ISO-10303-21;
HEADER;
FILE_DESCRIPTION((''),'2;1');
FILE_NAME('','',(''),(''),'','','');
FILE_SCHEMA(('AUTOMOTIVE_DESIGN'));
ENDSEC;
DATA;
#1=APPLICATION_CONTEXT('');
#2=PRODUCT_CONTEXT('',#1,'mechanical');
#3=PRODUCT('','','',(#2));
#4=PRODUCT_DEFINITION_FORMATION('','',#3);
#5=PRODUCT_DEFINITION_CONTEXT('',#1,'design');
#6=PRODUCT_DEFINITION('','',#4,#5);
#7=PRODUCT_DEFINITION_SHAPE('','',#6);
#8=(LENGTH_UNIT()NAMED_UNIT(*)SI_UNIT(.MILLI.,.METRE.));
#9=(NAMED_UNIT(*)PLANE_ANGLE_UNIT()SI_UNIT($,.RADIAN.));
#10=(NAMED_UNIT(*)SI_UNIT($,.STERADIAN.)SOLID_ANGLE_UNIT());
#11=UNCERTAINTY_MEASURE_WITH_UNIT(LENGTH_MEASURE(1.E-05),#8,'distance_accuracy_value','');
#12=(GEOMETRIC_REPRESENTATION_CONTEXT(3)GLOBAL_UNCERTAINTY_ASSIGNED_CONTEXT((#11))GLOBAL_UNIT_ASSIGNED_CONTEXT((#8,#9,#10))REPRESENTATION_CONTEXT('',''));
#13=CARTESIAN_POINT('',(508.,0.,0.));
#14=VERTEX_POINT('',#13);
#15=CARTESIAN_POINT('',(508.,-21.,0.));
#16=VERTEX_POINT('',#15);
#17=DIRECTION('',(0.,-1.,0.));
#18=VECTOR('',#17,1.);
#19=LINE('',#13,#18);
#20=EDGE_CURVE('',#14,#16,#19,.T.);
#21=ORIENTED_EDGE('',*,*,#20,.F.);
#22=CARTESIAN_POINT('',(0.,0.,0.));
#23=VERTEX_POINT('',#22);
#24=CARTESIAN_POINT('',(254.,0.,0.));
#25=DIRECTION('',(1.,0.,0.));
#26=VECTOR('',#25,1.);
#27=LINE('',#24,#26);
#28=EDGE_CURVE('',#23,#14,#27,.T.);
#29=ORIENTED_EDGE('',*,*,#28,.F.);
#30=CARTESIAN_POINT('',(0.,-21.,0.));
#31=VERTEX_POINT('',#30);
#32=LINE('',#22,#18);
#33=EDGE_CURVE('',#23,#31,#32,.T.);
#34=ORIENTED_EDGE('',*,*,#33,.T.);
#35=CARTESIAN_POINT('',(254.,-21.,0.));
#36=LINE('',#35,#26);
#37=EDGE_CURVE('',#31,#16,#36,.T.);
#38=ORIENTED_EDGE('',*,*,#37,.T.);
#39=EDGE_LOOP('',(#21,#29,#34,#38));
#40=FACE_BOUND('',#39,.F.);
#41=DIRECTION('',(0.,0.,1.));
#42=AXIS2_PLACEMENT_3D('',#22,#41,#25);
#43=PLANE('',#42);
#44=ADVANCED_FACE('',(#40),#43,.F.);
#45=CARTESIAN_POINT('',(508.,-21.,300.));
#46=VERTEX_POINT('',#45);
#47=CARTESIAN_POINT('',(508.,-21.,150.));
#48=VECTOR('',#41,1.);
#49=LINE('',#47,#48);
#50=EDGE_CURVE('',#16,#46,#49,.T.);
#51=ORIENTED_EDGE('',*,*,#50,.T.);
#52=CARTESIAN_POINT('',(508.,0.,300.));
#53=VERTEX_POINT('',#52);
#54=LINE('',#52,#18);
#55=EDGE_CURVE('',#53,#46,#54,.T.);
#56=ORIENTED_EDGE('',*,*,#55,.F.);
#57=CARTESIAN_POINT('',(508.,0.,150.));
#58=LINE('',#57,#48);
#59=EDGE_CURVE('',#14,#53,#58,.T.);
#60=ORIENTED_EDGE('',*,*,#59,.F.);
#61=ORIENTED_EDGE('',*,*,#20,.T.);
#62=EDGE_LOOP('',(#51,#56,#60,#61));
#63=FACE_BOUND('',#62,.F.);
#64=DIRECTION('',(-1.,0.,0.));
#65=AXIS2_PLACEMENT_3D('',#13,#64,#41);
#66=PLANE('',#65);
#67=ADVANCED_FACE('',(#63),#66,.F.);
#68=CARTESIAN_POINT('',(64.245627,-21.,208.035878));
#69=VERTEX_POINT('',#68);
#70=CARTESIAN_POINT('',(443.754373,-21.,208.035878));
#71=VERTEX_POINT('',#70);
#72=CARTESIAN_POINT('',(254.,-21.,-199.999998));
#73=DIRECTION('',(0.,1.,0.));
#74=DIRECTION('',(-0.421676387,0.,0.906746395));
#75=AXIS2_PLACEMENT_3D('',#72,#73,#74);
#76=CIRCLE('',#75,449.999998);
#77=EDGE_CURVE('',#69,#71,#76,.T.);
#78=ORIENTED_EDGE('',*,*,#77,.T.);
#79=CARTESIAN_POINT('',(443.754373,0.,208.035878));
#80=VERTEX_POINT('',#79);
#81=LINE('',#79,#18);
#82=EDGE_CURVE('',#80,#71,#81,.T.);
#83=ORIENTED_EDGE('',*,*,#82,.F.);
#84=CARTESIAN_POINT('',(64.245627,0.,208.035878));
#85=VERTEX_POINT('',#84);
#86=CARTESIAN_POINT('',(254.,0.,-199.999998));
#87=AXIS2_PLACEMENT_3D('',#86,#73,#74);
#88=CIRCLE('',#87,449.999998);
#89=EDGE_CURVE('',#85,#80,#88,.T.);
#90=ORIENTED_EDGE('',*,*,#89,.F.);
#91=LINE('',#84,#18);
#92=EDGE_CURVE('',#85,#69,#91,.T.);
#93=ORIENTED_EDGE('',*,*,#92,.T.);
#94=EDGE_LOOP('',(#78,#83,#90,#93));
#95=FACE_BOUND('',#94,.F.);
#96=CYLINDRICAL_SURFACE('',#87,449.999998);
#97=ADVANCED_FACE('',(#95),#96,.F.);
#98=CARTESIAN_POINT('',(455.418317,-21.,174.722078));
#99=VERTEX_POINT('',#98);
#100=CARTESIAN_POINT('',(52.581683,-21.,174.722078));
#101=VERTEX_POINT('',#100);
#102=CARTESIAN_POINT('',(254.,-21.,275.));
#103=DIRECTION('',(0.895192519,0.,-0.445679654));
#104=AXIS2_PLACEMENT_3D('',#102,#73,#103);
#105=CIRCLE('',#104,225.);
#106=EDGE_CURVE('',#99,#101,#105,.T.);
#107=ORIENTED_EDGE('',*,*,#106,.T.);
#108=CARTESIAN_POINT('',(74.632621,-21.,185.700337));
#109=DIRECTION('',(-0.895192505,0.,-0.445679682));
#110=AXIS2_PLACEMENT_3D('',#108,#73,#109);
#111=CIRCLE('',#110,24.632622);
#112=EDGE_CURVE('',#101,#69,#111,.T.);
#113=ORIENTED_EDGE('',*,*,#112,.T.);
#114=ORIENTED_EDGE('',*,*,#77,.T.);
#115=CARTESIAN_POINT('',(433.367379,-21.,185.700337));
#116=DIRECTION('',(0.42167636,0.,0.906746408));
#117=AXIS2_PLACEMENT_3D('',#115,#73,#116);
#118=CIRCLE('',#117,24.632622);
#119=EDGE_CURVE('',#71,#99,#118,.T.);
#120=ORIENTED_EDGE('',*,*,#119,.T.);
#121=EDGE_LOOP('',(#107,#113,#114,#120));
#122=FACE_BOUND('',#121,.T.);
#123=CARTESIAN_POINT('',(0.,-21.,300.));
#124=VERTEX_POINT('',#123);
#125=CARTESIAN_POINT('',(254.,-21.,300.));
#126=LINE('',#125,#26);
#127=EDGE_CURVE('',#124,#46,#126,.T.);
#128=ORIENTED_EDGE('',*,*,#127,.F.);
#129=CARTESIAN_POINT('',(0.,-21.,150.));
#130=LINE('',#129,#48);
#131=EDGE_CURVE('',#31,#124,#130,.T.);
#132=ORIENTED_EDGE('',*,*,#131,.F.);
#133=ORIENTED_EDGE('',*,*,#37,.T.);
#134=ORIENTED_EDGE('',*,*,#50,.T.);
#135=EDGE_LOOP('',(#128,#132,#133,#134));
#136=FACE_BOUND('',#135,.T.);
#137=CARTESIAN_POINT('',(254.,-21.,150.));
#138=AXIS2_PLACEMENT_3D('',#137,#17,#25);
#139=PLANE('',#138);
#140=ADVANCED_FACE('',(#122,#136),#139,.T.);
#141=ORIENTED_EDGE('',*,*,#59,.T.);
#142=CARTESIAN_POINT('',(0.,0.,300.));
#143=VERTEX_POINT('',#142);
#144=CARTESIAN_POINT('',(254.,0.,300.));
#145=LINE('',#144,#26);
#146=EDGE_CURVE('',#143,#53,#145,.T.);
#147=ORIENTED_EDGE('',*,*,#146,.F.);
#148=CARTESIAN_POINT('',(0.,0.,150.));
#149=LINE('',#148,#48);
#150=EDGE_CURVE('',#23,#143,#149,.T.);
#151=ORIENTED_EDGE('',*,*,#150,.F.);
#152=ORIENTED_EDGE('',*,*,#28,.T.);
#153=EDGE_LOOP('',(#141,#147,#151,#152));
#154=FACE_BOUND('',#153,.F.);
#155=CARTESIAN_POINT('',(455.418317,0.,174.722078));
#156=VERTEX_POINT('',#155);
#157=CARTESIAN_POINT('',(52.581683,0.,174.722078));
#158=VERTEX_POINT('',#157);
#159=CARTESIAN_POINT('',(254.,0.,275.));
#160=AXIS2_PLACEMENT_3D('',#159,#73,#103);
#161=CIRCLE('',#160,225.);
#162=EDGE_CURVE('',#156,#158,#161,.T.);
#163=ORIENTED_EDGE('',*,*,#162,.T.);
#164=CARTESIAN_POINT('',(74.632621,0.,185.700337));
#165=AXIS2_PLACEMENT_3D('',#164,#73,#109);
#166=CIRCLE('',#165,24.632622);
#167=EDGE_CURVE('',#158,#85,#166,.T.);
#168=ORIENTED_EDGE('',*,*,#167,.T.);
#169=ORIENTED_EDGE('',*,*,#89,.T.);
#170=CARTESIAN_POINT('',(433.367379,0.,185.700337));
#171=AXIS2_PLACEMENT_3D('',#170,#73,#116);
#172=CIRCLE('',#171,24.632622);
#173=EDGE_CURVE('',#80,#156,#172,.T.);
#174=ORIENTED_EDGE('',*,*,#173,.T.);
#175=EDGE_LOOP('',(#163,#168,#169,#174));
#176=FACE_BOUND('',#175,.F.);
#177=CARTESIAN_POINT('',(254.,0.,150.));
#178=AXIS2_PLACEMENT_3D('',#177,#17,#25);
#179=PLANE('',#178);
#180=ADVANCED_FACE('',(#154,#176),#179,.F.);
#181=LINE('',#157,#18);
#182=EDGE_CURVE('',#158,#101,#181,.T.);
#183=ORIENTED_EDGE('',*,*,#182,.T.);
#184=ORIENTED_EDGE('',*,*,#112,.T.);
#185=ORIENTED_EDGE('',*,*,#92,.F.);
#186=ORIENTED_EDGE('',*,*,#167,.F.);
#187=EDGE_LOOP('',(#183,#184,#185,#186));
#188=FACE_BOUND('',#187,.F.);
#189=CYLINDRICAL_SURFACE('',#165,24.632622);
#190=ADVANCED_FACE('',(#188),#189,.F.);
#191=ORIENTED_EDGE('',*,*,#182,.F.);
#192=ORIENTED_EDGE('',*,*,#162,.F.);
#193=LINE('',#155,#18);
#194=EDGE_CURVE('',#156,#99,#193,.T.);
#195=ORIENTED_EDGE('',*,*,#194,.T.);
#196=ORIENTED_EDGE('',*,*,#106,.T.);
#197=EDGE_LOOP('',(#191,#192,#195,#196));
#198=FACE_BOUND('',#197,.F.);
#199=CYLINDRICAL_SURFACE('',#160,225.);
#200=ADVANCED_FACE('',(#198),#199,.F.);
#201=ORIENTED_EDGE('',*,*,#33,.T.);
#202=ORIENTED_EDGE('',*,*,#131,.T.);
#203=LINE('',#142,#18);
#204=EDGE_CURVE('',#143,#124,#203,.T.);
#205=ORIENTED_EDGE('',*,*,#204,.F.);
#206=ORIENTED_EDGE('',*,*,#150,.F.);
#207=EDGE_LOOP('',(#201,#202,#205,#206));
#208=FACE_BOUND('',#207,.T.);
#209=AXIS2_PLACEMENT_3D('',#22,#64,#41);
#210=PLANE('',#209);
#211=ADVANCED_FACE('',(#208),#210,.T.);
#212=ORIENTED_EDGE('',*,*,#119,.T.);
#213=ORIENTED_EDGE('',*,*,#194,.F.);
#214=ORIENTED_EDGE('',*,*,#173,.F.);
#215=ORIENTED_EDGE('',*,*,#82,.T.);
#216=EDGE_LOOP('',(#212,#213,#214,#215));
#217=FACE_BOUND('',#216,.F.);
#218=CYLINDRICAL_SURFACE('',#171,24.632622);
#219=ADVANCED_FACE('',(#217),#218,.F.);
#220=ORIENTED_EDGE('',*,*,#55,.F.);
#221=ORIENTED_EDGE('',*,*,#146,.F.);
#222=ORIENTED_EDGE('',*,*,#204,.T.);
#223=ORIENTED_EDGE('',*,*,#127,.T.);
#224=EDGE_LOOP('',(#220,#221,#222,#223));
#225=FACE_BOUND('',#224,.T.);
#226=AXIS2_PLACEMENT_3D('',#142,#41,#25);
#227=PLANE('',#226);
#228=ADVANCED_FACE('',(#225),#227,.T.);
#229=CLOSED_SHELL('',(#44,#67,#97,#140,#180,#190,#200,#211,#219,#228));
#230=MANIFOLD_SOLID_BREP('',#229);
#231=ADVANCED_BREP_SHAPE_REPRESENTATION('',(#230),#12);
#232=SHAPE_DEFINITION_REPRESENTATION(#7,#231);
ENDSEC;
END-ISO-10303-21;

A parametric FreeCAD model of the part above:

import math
import FreeCAD as App
import Part
import Sketcher

doc = App.newDocument("Part")
body = doc.addObject("PartDesign::Body", "Body")

# Sketch on XZ plane
sketch1 = body.newObject("Sketcher::SketchObject", "Sketch")
sketch1.AttachmentSupport = (doc.getObject("XZ_Plane"), [""])
sketch1.MapMode = "FlatFace"
sketch1.addGeometry([
    Part.LineSegment(App.Vector(0, 300, 0), App.Vector(0, 0, 0)),  # 0
    Part.LineSegment(App.Vector(0, 0, 0), App.Vector(508, 0, 0)),  # 1
    Part.LineSegment(App.Vector(508, 0, 0), App.Vector(508, 300, 0)),  # 2
    Part.LineSegment(App.Vector(508, 300, 0), App.Vector(0, 300, 0)),  # 3
    Part.ArcOfCircle(Part.Circle(App.Vector(74.632621, 185.700337, 0), App.Vector(0, 0, 1), 24.632622), math.radians(114.940468), math.radians(206.466833)),  # 4
    Part.ArcOfCircle(Part.Circle(App.Vector(254, -199.999998, 0), App.Vector(0, 0, 1), 449.999998), math.radians(65.05953), math.radians(114.94047)),  # 5
    Part.ArcOfCircle(Part.Circle(App.Vector(433.367379, 185.700337, 0), App.Vector(0, 0, 1), 24.632622), math.radians(-26.466833), math.radians(65.059532)),  # 6
    Part.ArcOfCircle(Part.Circle(App.Vector(254, 275, 0), App.Vector(0, 0, 1), 225), math.radians(-153.533169), math.radians(-26.466831)),  # 7
], False)
sketch1.addConstraint([
    Sketcher.Constraint("Coincident", 0, 2, 1, 1),
    Sketcher.Constraint("Coincident", 1, 2, 2, 1),
    Sketcher.Constraint("Coincident", 2, 2, 3, 1),
    Sketcher.Constraint("Coincident", 3, 2, 0, 1),
    Sketcher.Constraint("Tangent", 4, 1, 5, 2),
    Sketcher.Constraint("Tangent", 5, 1, 6, 2),
    Sketcher.Constraint("Tangent", 6, 1, 7, 2),
    Sketcher.Constraint("Tangent", 7, 1, 4, 2),
    Sketcher.Constraint("Vertical", 0),
    Sketcher.Constraint("Horizontal", 1),
    Sketcher.Constraint("Vertical", 2),
    Sketcher.Constraint("Horizontal", 3),
    Sketcher.Constraint("Coincident", 0, 2, -1, 1),
    Sketcher.Constraint("Equal", 4, 6),
    Sketcher.Constraint("Horizontal", 4, 3, 6, 3),
    Sketcher.Constraint("Radius", 7, 225.0),
    Sketcher.Constraint("DistanceX", 1, 1, 1, 2, 508.0),
    Sketcher.Constraint("DistanceY", 0, 2, 0, 1, 300.0),
    Sketcher.Constraint("DistanceX", -1, 1, 5, 3, 254.0),
    Sketcher.Constraint("DistanceY", -1, 1, 7, 3, 275.0),
    Sketcher.Constraint("Radius", 4, 24.632622),
    Sketcher.Constraint("Radius", 5, 449.999998),
    Sketcher.Constraint("DistanceX", -1, 1, 4, 3, 74.632621),
])
pad1 = body.newObject("PartDesign::Pad", "Pad")
pad1.Profile = sketch1
pad1.Length = 21

doc.recompute()
